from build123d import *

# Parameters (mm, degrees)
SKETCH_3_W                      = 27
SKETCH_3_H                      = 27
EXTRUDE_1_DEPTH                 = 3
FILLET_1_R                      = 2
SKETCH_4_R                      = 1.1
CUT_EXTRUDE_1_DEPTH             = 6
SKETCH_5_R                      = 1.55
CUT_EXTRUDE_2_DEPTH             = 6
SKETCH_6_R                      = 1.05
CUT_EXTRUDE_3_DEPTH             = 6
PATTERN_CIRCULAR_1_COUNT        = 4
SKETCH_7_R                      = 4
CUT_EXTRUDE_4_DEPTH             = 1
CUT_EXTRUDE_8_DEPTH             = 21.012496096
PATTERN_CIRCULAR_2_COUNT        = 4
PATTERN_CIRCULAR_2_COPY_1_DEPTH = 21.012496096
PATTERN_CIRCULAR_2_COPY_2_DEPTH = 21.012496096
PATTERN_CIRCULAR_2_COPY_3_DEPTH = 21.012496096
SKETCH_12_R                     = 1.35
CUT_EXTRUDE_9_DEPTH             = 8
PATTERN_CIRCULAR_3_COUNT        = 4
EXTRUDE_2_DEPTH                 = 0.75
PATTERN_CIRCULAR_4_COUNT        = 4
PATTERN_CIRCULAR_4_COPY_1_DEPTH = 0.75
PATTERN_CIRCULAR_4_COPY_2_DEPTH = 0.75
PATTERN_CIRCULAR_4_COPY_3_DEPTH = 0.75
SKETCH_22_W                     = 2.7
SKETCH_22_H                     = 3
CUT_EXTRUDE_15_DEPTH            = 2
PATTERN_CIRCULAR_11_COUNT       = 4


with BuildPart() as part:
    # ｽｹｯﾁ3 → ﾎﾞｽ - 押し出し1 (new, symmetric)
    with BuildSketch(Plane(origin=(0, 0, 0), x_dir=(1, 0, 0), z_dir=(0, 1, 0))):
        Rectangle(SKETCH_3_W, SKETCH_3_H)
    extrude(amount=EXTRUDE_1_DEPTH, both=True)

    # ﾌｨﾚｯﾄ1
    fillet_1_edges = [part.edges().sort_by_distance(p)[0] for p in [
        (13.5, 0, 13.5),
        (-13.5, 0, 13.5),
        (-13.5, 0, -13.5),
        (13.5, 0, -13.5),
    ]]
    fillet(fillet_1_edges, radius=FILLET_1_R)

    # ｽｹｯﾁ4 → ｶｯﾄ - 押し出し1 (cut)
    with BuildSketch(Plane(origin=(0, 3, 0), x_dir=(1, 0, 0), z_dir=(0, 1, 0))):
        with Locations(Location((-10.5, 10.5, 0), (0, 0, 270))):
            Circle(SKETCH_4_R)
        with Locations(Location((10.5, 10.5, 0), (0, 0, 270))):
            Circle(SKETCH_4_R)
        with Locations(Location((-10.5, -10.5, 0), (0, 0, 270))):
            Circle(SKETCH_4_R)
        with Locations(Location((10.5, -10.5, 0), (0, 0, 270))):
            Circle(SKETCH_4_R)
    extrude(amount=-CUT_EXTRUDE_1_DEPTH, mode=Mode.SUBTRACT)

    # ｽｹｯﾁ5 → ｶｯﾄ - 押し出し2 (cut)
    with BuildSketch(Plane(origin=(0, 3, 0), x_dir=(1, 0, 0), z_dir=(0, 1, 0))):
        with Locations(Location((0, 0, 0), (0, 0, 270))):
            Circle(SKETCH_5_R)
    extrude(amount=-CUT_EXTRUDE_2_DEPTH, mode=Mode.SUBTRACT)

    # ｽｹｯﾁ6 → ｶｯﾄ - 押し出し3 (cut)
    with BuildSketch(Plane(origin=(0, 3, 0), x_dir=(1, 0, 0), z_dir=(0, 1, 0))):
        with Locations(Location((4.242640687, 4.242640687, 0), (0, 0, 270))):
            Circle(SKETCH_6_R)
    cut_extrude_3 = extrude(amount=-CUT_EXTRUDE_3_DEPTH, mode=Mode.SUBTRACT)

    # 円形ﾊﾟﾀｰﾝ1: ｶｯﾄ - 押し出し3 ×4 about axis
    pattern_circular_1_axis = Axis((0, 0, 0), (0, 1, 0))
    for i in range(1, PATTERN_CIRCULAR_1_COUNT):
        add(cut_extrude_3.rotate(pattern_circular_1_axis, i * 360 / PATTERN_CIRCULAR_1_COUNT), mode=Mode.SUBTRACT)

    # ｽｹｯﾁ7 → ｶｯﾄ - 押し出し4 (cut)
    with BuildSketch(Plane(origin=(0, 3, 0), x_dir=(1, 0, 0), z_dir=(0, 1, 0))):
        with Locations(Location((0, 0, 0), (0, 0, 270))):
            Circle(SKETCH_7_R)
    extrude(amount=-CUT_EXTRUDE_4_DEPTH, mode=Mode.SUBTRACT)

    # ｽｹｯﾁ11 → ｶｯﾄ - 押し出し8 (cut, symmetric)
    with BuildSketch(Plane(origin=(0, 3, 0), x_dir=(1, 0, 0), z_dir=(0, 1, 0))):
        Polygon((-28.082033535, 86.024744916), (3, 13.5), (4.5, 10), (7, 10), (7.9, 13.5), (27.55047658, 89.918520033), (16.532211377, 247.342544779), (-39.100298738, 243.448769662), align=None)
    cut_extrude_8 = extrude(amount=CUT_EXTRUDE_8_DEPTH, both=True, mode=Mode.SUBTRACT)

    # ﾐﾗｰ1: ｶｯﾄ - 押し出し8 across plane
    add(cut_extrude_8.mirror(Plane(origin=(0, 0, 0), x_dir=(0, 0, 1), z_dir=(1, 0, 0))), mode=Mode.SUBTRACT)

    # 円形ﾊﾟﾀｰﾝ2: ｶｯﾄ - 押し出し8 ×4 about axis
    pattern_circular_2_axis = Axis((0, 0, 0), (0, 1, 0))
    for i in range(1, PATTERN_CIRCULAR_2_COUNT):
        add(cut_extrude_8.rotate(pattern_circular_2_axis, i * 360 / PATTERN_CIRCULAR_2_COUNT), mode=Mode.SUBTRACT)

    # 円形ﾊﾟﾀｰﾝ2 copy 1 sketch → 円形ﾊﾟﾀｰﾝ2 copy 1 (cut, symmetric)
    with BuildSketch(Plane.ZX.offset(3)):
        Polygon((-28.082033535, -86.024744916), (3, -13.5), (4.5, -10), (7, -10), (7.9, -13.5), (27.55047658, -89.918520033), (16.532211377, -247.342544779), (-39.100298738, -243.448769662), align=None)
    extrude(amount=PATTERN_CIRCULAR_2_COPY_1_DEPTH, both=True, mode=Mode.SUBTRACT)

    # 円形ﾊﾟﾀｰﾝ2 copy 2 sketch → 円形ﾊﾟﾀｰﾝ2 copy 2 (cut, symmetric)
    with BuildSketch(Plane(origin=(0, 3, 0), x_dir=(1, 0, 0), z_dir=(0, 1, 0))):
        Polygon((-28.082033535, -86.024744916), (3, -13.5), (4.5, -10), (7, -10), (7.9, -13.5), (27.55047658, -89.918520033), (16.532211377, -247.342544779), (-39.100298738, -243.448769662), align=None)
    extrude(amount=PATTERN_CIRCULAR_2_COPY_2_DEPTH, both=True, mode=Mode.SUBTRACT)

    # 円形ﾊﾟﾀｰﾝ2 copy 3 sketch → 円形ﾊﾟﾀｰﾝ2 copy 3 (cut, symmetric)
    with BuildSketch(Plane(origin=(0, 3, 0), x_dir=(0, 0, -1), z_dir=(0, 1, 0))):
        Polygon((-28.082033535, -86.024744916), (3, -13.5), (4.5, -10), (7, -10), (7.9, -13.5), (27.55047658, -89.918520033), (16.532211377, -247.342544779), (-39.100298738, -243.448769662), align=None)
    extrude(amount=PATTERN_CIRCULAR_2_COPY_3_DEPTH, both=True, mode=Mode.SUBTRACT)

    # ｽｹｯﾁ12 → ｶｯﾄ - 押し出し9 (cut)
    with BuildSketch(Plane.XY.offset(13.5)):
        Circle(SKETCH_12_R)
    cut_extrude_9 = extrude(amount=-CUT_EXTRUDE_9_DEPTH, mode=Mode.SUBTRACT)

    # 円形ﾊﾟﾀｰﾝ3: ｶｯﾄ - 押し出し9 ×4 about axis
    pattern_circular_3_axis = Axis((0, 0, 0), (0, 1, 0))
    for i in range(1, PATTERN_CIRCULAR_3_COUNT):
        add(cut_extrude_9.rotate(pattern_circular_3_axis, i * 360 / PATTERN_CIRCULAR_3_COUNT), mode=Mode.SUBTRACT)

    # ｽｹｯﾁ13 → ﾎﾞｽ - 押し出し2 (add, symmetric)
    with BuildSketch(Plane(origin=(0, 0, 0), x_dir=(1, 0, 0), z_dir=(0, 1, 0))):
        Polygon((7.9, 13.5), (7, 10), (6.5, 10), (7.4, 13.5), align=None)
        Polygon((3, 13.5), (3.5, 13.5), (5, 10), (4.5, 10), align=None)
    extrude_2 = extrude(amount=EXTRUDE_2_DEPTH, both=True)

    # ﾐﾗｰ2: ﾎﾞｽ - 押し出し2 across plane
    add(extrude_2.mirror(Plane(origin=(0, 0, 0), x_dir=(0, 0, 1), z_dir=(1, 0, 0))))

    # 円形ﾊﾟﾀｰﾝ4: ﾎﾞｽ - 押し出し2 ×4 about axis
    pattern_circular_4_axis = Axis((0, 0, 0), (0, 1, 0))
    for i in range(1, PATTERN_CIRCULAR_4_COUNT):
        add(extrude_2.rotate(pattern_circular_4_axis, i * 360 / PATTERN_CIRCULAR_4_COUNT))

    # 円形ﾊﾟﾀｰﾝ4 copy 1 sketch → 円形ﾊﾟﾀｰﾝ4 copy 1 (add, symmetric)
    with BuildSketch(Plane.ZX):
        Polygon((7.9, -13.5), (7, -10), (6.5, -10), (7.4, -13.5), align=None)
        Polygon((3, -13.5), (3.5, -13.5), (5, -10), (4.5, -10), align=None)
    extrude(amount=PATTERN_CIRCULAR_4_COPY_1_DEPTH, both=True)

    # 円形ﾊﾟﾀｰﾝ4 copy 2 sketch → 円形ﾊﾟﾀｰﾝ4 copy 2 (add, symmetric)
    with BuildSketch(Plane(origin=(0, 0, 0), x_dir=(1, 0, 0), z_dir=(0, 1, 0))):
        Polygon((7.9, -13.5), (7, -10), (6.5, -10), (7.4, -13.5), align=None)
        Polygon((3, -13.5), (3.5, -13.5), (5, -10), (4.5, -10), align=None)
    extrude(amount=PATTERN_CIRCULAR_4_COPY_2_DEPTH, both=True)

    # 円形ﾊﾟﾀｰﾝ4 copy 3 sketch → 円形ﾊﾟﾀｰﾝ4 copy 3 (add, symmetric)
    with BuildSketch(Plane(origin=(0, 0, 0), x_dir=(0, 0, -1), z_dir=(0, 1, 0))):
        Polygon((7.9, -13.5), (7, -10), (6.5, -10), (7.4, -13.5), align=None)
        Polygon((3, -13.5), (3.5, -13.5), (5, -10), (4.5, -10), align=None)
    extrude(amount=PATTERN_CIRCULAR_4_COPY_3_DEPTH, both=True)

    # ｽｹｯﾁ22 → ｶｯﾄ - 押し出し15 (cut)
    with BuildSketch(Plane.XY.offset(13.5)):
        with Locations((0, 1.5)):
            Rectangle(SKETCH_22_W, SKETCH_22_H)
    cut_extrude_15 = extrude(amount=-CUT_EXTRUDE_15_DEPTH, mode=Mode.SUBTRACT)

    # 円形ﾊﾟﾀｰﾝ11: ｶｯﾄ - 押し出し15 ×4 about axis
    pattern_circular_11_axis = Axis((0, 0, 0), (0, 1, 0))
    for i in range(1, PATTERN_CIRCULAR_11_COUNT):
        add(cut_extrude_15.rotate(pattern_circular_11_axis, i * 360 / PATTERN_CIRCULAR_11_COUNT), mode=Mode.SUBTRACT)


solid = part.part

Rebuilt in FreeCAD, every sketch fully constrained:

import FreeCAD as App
import Part
import Sketcher


def edges_at(feature, points):
    """Names of the edges that pass closest to the given points."""
    edges = feature.Shape.Edges
    near = lambda p: min(range(len(edges)), key=lambda i: edges[i].distToShape(Part.Vertex(*p))[0])
    return sorted({f"Edge{near(p) + 1}" for p in points})


def add_polygon(sketch, points):
    """Adds a closed chain of lines whose ends are joined by coincident constraints."""
    first, n = sketch.GeometryCount, len(points)
    for a, b in zip(points, points[1:] + points[:1]):
        sketch.addGeometry(Part.LineSegment(App.Vector(*a, 0), App.Vector(*b, 0)), False)
    for i in range(n):
        sketch.addConstraint(Sketcher.Constraint("Coincident", first + i, 2, first + (i + 1) % n, 1))

doc = App.newDocument("Part")
body = doc.addObject("PartDesign::Body", "Body")

sketch1 = doc.addObject("Sketcher::SketchObject", "Sketch")
body.addObject(sketch1)
sketch1.AttachmentSupport = (doc.XZ_Plane, [""])
sketch1.MapMode = "FlatFace"
add_polygon(sketch1, [(-14, -14), (-14, 14), (14, 14), (14, -14)])
sketch1.addConstraint(Sketcher.Constraint("Vertical", 0))
sketch1.addConstraint(Sketcher.Constraint("Horizontal", 1))
sketch1.addConstraint(Sketcher.Constraint("Vertical", 2))
sketch1.addConstraint(Sketcher.Constraint("Horizontal", 3))
sketch1.addConstraint(Sketcher.Constraint("Symmetric", 0, 2, 2, 2, -1, 1))
sketch1.addConstraint(Sketcher.Constraint("Equal", 3, 0))
sketch1.addConstraint(Sketcher.Constraint("DistanceX", 1, 1, 1, 2, 27.0))
pad1 = doc.addObject("PartDesign::Pad", "Pad")
body.addObject(pad1)
pad1.Profile = sketch1
pad1.Length = 6
pad1.Midplane = True
doc.recompute()

fillet = doc.addObject("PartDesign::Fillet", "Fillet")
body.addObject(fillet)
fillet.Base = (pad1, edges_at(pad1, [
    (13.5, 0, 13.5),
    (-13.5, 0, 13.5),
    (-13.5, 0, -13.5),
    (13.5, 0, -13.5),
]))
fillet.Radius = 2

sketch2 = doc.addObject("Sketcher::SketchObject", "Sketch001")
body.addObject(sketch2)
sketch2.AttachmentSupport = (doc.XZ_Plane, [""])
sketch2.MapMode = "FlatFace"
sketch2.AttachmentOffset = App.Placement(App.Vector(0, 0, -3), App.Rotation())
sketch2.addGeometry(Part.Circle(App.Vector(-10.5, -10.5, 0), App.Vector(0, 0, 1), 1.1), False)
sketch2.addGeometry(Part.Circle(App.Vector(10.5, -10.5, 0), App.Vector(0, 0, 1), 1.1), False)
sketch2.addGeometry(Part.Circle(App.Vector(-10.5, 10.5, 0), App.Vector(0, 0, 1), 1.1), False)
sketch2.addGeometry(Part.Circle(App.Vector(10.5, 10.5, 0), App.Vector(0, 0, 1), 1.1), False)
sketch2.addConstraint(Sketcher.Constraint("Equal", 0, 1))
sketch2.addConstraint(Sketcher.Constraint("Equal", 1, 2))
sketch2.addConstraint(Sketcher.Constraint("Equal", 2, 3))
sketch2.addConstraint(Sketcher.Constraint("Symmetric", 1, 3, 2, 3, -1, 1))
sketch2.addConstraint(Sketcher.Constraint("Symmetric", 0, 3, 3, 3, -1, 1))
sketch2.addConstraint(Sketcher.Constraint("Symmetric", 0, 3, 1, 3, -2))
sketch2.addConstraint(Sketcher.Constraint("Diameter", 0, 2.2))
sketch2.addConstraint(Sketcher.Constraint("DistanceX", 0, 3, 1, 3, 21.0))
sketch2.addConstraint(Sketcher.Constraint("DistanceY", 0, 3, 2, 3, 21.0))
pocket1 = doc.addObject("PartDesign::Pocket", "Pocket")
body.addObject(pocket1)
pocket1.Profile = sketch2
pocket1.Length = 6
pocket1.Reversed = True

sketch3 = doc.addObject("Sketcher::SketchObject", "Sketch002")
body.addObject(sketch3)
sketch3.AttachmentSupport = (doc.XZ_Plane, [""])
sketch3.MapMode = "FlatFace"
sketch3.AttachmentOffset = App.Placement(App.Vector(0, 0, -3), App.Rotation())
sketch3.addGeometry(Part.Circle(App.Vector(0, 0, 0), App.Vector(0, 0, 1), 1.6), False)
sketch3.addConstraint(Sketcher.Constraint("Coincident", 0, 3, -1, 1))
sketch3.addConstraint(Sketcher.Constraint("Diameter", 0, 3.1))
pocket2 = doc.addObject("PartDesign::Pocket", "Pocket001")
body.addObject(pocket2)
pocket2.Profile = sketch3
pocket2.Length = 6
pocket2.Reversed = True

sketch4 = doc.addObject("Sketcher::SketchObject", "Sketch003")
body.addObject(sketch4)
sketch4.AttachmentSupport = (doc.XZ_Plane, [""])
sketch4.MapMode = "FlatFace"
sketch4.AttachmentOffset = App.Placement(App.Vector(0, 0, -3), App.Rotation())
sketch4.addGeometry(Part.Circle(App.Vector(4.2, -4.2, 0), App.Vector(0, 0, 1), 1.1), False)
sketch4.addConstraint(Sketcher.Constraint("Diameter", 0, 2.1))
sketch4.addConstraint(Sketcher.Constraint("DistanceX", -1, 1, 0, 3, 4.242641))
sketch4.addConstraint(Sketcher.Constraint("DistanceY", 0, 3, -1, 1, 4.242641))
pocket3 = doc.addObject("PartDesign::Pocket", "Pocket002")
body.addObject(pocket3)
pocket3.Profile = sketch4
pocket3.Length = 6
pocket3.Reversed = True
doc.recompute()

polarpattern = doc.addObject("PartDesign::PolarPattern", "PolarPattern")
body.addObject(polarpattern)
polarpattern.Originals = [pocket3]
polarpattern.Axis = (doc.Y_Axis, [""])
polarpattern.Angle = 360
polarpattern.Occurrences = 4
body.Tip = polarpattern

sketch5 = doc.addObject("Sketcher::SketchObject", "Sketch004")
body.addObject(sketch5)
sketch5.AttachmentSupport = (doc.XZ_Plane, [""])
sketch5.MapMode = "FlatFace"
sketch5.AttachmentOffset = App.Placement(App.Vector(0, 0, -3), App.Rotation())
sketch5.addGeometry(Part.Circle(App.Vector(0, 0, 0), App.Vector(0, 0, 1), 4), False)
sketch5.addConstraint(Sketcher.Constraint("Coincident", 0, 3, -1, 1))
sketch5.addConstraint(Sketcher.Constraint("Diameter", 0, 8.0))
pocket4 = doc.addObject("PartDesign::Pocket", "Pocket003")
body.addObject(pocket4)
pocket4.Profile = sketch5
pocket4.Length = 1
pocket4.Reversed = True

sketch6 = doc.addObject("Sketcher::SketchObject", "Sketch005")
body.addObject(sketch6)
sketch6.AttachmentSupport = (doc.XZ_Plane, [""])
sketch6.MapMode = "FlatFace"
sketch6.AttachmentOffset = App.Placement(App.Vector(0, 0, -3), App.Rotation())
add_polygon(sketch6, [(-28.1, -86), (3, -13.5), (4.5, -10), (7, -10), (7.9, -13.5), (27.6, -89.9), (16.5, -247.3), (-39.1, -243.4)])
sketch6.addConstraint(Sketcher.Constraint("Horizontal", 2))
sketch6.addConstraint(Sketcher.Constraint("Parallel", 0, 1))
sketch6.addConstraint(Sketcher.Constraint("Parallel", 3, 4))
sketch6.addConstraint(Sketcher.Constraint("Perpendicular", 5, 6))
sketch6.addConstraint(Sketcher.Constraint("Perpendicular", 6, 7))
sketch6.addConstraint(Sketcher.Constraint("Horizontal", 0, 2, 3, 2))
sketch6.addConstraint(Sketcher.Constraint("Equal", 0, 4))
sketch6.addConstraint(Sketcher.Constraint("Equal", 5, 7))
sketch6.addConstraint(Sketcher.Constraint("DistanceX", 2, 1, 2, 2, 2.5))
sketch6.addConstraint(Sketcher.Constraint("DistanceX", -1, 1, 0, 2, 3.0))
sketch6.addConstraint(Sketcher.Constraint("DistanceY", 1, 2, -1, 1, 10.0))
sketch6.addConstraint(Sketcher.Constraint("DistanceX", -1, 1, 2, 2, 7.0))
sketch6.addConstraint(Sketcher.Constraint("DistanceY", 0, 2, -1, 1, 13.5))
sketch6.addConstraint(Sketcher.Constraint("DistanceX", -1, 1, 3, 2, 7.9))
sketch6.addConstraint(Sketcher.Constraint("DistanceX", 6, 2, -1, 1, 39.100299))
sketch6.addConstraint(Sketcher.Constraint("Distance", 0, 78.904572))
pocket5 = doc.addObject("PartDesign::Pocket", "Pocket004")
body.addObject(pocket5)
pocket5.Profile = sketch6
pocket5.Length = 42.024992
pocket5.Midplane = True
doc.recompute()

mirrored = doc.addObject("PartDesign::Mirrored", "Mirrored")
body.addObject(mirrored)
mirrored.Originals = [pocket5]
mirrored.MirrorPlane = (doc.YZ_Plane, [""])
body.Tip = mirrored
doc.recompute()

polarpattern2 = doc.addObject("PartDesign::PolarPattern", "PolarPattern001")
body.addObject(polarpattern2)
polarpattern2.Originals = [pocket5]
polarpattern2.Axis = (doc.Y_Axis, [""])
polarpattern2.Angle = 360
polarpattern2.Occurrences = 4
body.Tip = polarpattern2

sketch7 = doc.addObject("Sketcher::SketchObject", "Sketch006")
body.addObject(sketch7)
sketch7.AttachmentSupport = (doc.XZ_Plane, [""])
sketch7.MapMode = "FlatFace"
sketch7.AttachmentOffset = App.Placement(App.Vector(0, 0, -3), App.Rotation())
add_polygon(sketch7, [(-13.5, 3), (-86, -28.1), (-243.4, -39.1), (-247.3, 16.5), (-89.9, 27.6), (-13.5, 7.9), (-10, 7), (-10, 4.5)])
sketch7.addConstraint(Sketcher.Constraint("Vertical", 6))
sketch7.addConstraint(Sketcher.Constraint("Perpendicular", 1, 2))
sketch7.addConstraint(Sketcher.Constraint("Perpendicular", 2, 3))
sketch7.addConstraint(Sketcher.Constraint("Parallel", 4, 5))
sketch7.addConstraint(Sketcher.Constraint("Parallel", 0, 7))
sketch7.addConstraint(Sketcher.Constraint("Vertical", 4, 2, 7, 2))
sketch7.addConstraint(Sketcher.Constraint("Equal", 1, 3))
sketch7.addConstraint(Sketcher.Constraint("Equal", 0, 4))
sketch7.addConstraint(Sketcher.Constraint("DistanceY", 6, 2, 6, 1, 2.5))
sketch7.addConstraint(Sketcher.Constraint("DistanceX", 5, 2, -1, 1, 10.0))
sketch7.addConstraint(Sketcher.Constraint("DistanceY", -1, 1, 5, 2, 7.0))
sketch7.addConstraint(Sketcher.Constraint("DistanceY", -1, 1, 7, 2, 3.0))
sketch7.addConstraint(Sketcher.Constraint("DistanceX", 4, 2, -1, 1, 13.5))
sketch7.addConstraint(Sketcher.Constraint("DistanceY", -1, 1, 4, 2, 7.9))
sketch7.addConstraint(Sketcher.Constraint("DistanceY", 1, 2, -1, 1, 39.100299))
sketch7.addConstraint(Sketcher.Constraint("DistanceX", 2, 2, 0, 2, 161.3178))
pocket6 = doc.addObject("PartDesign::Pocket", "Pocket005")
body.addObject(pocket6)
pocket6.Profile = sketch7
pocket6.Length = 42.024992
pocket6.Midplane = True

sketch8 = doc.addObject("Sketcher::SketchObject", "Sketch007")
body.addObject(sketch8)
sketch8.AttachmentSupport = (doc.XZ_Plane, [""])
sketch8.MapMode = "FlatFace"
sketch8.AttachmentOffset = App.Placement(App.Vector(0, 0, -3), App.Rotation())
add_polygon(sketch8, [(3, 13.5), (-28.1, 86), (-39.1, 243.4), (16.5, 247.3), (27.6, 89.9), (7.9, 13.5), (7, 10), (4.5, 10)])
sketch8.addConstraint(Sketcher.Constraint("Horizontal", 6))
sketch8.addConstraint(Sketcher.Constraint("Perpendicular", 1, 2))
sketch8.addConstraint(Sketcher.Constraint("Perpendicular", 2, 3))
sketch8.addConstraint(Sketcher.Constraint("Parallel", 4, 5))
sketch8.addConstraint(Sketcher.Constraint("Parallel", 0, 7))
sketch8.addConstraint(Sketcher.Constraint("Horizontal", 4, 2, 7, 2))
sketch8.addConstraint(Sketcher.Constraint("Equal", 1, 3))
sketch8.addConstraint(Sketcher.Constraint("Equal", 0, 4))
sketch8.addConstraint(Sketcher.Constraint("DistanceX", 6, 2, 6, 1, 2.5))
sketch8.addConstraint(Sketcher.Constraint("DistanceX", -1, 1, 5, 2, 7.0))
sketch8.addConstraint(Sketcher.Constraint("DistanceY", -1, 1, 5, 2, 10.0))
sketch8.addConstraint(Sketcher.Constraint("DistanceX", -1, 1, 7, 2, 3.0))
sketch8.addConstraint(Sketcher.Constraint("DistanceX", -1, 1, 4, 2, 7.9))
sketch8.addConstraint(Sketcher.Constraint("DistanceY", -1, 1, 4, 2, 13.5))
sketch8.addConstraint(Sketcher.Constraint("DistanceX", 1, 2, -1, 1, 39.100299))
sketch8.addConstraint(Sketcher.Constraint("DistanceY", 0, 2, 2, 2, 161.3178))
pocket7 = doc.addObject("PartDesign::Pocket", "Pocket006")
body.addObject(pocket7)
pocket7.Profile = sketch8
pocket7.Length = 42.024992
pocket7.Midplane = True

sketch9 = doc.addObject("Sketcher::SketchObject", "Sketch008")
body.addObject(sketch9)
sketch9.AttachmentSupport = (doc.XZ_Plane, [""])
sketch9.MapMode = "FlatFace"
sketch9.AttachmentOffset = App.Placement(App.Vector(0, 0, -3), App.Rotation())
add_polygon(sketch9, [(13.5, -3), (86, 28.1), (243.4, 39.1), (247.3, -16.5), (89.9, -27.6), (13.5, -7.9), (10, -7), (10, -4.5)])
sketch9.addConstraint(Sketcher.Constraint("Vertical", 6))
sketch9.addConstraint(Sketcher.Constraint("Perpendicular", 1, 2))
sketch9.addConstraint(Sketcher.Constraint("Perpendicular", 2, 3))
sketch9.addConstraint(Sketcher.Constraint("Parallel", 4, 5))
sketch9.addConstraint(Sketcher.Constraint("Parallel", 0, 7))
sketch9.addConstraint(Sketcher.Constraint("Vertical", 4, 2, 7, 2))
sketch9.addConstraint(Sketcher.Constraint("Equal", 1, 3))
sketch9.addConstraint(Sketcher.Constraint("Equal", 0, 4))
sketch9.addConstraint(Sketcher.Constraint("DistanceY", 6, 1, 6, 2, 2.5))
sketch9.addConstraint(Sketcher.Constraint("DistanceX", -1, 1, 5, 2, 10.0))
sketch9.addConstraint(Sketcher.Constraint("DistanceY", 5, 2, -1, 1, 7.0))
sketch9.addConstraint(Sketcher.Constraint("DistanceY", 7, 2, -1, 1, 3.0))
sketch9.addConstraint(Sketcher.Constraint("DistanceX", -1, 1, 4, 2, 13.5))
sketch9.addConstraint(Sketcher.Constraint("DistanceY", 4, 2, -1, 1, 7.9))
sketch9.addConstraint(Sketcher.Constraint("DistanceY", -1, 1, 1, 2, 39.100299))
sketch9.addConstraint(Sketcher.Constraint("DistanceX", 0, 2, 2, 2, 161.3178))
pocket8 = doc.addObject("PartDesign::Pocket", "Pocket007")
body.addObject(pocket8)
pocket8.Profile = sketch9
pocket8.Length = 42.024992
pocket8.Midplane = True

sketch10 = doc.addObject("Sketcher::SketchObject", "Sketch009")
body.addObject(sketch10)
sketch10.AttachmentSupport = (doc.XY_Plane, [""])
sketch10.MapMode = "FlatFace"
sketch10.AttachmentOffset = App.Placement(App.Vector(0, 0, 13.5), App.Rotation())
sketch10.addGeometry(Part.Circle(App.Vector(0, 0, 0), App.Vector(0, 0, 1), 1.4), False)
sketch10.addConstraint(Sketcher.Constraint("Coincident", 0, 3, -1, 1))
sketch10.addConstraint(Sketcher.Constraint("Diameter", 0, 2.7))
pocket9 = doc.addObject("PartDesign::Pocket", "Pocket008")
body.addObject(pocket9)
pocket9.Profile = sketch10
pocket9.Length = 8
doc.recompute()

polarpattern3 = doc.addObject("PartDesign::PolarPattern", "PolarPattern002")
body.addObject(polarpattern3)
polarpattern3.Originals = [pocket9]
polarpattern3.Axis = (doc.Y_Axis, [""])
polarpattern3.Angle = 360
polarpattern3.Occurrences = 4
body.Tip = polarpattern3

sketch11 = doc.addObject("Sketcher::SketchObject", "Sketch010")
body.addObject(sketch11)
sketch11.AttachmentSupport = (doc.XZ_Plane, [""])
sketch11.MapMode = "FlatFace"
add_polygon(sketch11, [(7, -10), (7.9, -13.5), (7.4, -13.5), (6.5, -10)])
add_polygon(sketch11, [(3.5, -13.5), (3, -13.5), (4.5, -10), (5, -10)])
sketch11.addConstraint(Sketcher.Constraint("Horizontal", 1))
sketch11.addConstraint(Sketcher.Constraint("Horizontal", 3))
sketch11.addConstraint(Sketcher.Constraint("Horizontal", 4))
sketch11.addConstraint(Sketcher.Constraint("Horizontal", 6))
sketch11.addConstraint(Sketcher.Constraint("Parallel", 0, 2))
sketch11.addConstraint(Sketcher.Constraint("Parallel", 5, 7))
sketch11.addConstraint(Sketcher.Constraint("Horizontal", 1, 2, 4, 2))
sketch11.addConstraint(Sketcher.Constraint("Horizontal", 3, 2, 5, 2))
sketch11.addConstraint(Sketcher.Constraint("Equal", 3, 4))
sketch11.addConstraint(Sketcher.Constraint("DistanceX", 1, 2, 1, 1, 0.5))
sketch11.addConstraint(Sketcher.Constraint("DistanceY", 2, 2, -1, 1, 10.0))
sketch11.addConstraint(Sketcher.Constraint("DistanceX", -1, 1, 3, 2, 7.0))
sketch11.addConstraint(Sketcher.Constraint("DistanceX", -1, 1, 4, 2, 3.0))
sketch11.addConstraint(Sketcher.Constraint("DistanceX", -1, 1, 6, 2, 5.0))
sketch11.addConstraint(Sketcher.Constraint("DistanceX", -1, 1, 0, 2, 7.9))
sketch11.addConstraint(Sketcher.Constraint("DistanceY", 0, 2, -1, 1, 13.5))
pad2 = doc.addObject("PartDesign::Pad", "Pad001")
body.addObject(pad2)
pad2.Profile = sketch11
pad2.Length = 1.5
pad2.Midplane = True
doc.recompute()

mirrored2 = doc.addObject("PartDesign::Mirrored", "Mirrored001")
body.addObject(mirrored2)
mirrored2.Originals = [pad2]
mirrored2.MirrorPlane = (doc.YZ_Plane, [""])
body.Tip = mirrored2
doc.recompute()

polarpattern4 = doc.addObject("PartDesign::PolarPattern", "PolarPattern003")
body.addObject(polarpattern4)
polarpattern4.Originals = [pad2]
polarpattern4.Axis = (doc.Y_Axis, [""])
polarpattern4.Angle = 360
polarpattern4.Occurrences = 4
body.Tip = polarpattern4

sketch12 = doc.addObject("Sketcher::SketchObject", "Sketch011")
body.addObject(sketch12)
sketch12.AttachmentSupport = (doc.XZ_Plane, [""])
sketch12.MapMode = "FlatFace"
add_polygon(sketch12, [(-13.5, 7.9), (-10, 7), (-10, 6.5), (-13.5, 7.4)])
add_polygon(sketch12, [(-13.5, 3), (-13.5, 3.5), (-10, 5), (-10, 4.5)])
sketch12.addConstraint(Sketcher.Constraint("Vertical", 1))
sketch12.addConstraint(Sketcher.Constraint("Vertical", 3))
sketch12.addConstraint(Sketcher.Constraint("Vertical", 4))
sketch12.addConstraint(Sketcher.Constraint("Vertical", 6))
sketch12.addConstraint(Sketcher.Constraint("Parallel", 0, 2))
sketch12.addConstraint(Sketcher.Constraint("Parallel", 5, 7))
sketch12.addConstraint(Sketcher.Constraint("Vertical", 3, 2, 4, 2))
sketch12.addConstraint(Sketcher.Constraint("Vertical", 1, 2, 5, 2))
sketch12.addConstraint(Sketcher.Constraint("Equal", 3, 4))
sketch12.addConstraint(Sketcher.Constraint("DistanceY", 1, 2, 1, 1, 0.5))
sketch12.addConstraint(Sketcher.Constraint("DistanceX", 0, 2, -1, 1, 10.0))
sketch12.addConstraint(Sketcher.Constraint("DistanceY", -1, 1, 0, 2, 7.0))
sketch12.addConstraint(Sketcher.Constraint("DistanceY", -1, 1, 5, 2, 5.0))
sketch12.addConstraint(Sketcher.Constraint("DistanceY", -1, 1, 7, 2, 3.0))
sketch12.addConstraint(Sketcher.Constraint("DistanceX", 2, 2, -1, 1, 13.5))
sketch12.addConstraint(Sketcher.Constraint("DistanceY", -1, 1, 2, 2, 7.4))
pad3 = doc.addObject("PartDesign::Pad", "Pad002")
body.addObject(pad3)
pad3.Profile = sketch12
pad3.Length = 1.5
pad3.Midplane = True

sketch13 = doc.addObject("Sketcher::SketchObject", "Sketch012")
body.addObject(sketch13)
sketch13.AttachmentSupport = (doc.XZ_Plane, [""])
sketch13.MapMode = "FlatFace"
add_polygon(sketch13, [(7.9, 13.5), (7, 10), (6.5, 10), (7.4, 13.5)])
add_polygon(sketch13, [(3, 13.5), (3.5, 13.5), (5, 10), (4.5, 10)])
sketch13.addConstraint(Sketcher.Constraint("Horizontal", 1))
sketch13.addConstraint(Sketcher.Constraint("Horizontal", 3))
sketch13.addConstraint(Sketcher.Constraint("Horizontal", 4))
sketch13.addConstraint(Sketcher.Constraint("Horizontal", 6))
sketch13.addConstraint(Sketcher.Constraint("Parallel", 0, 2))
sketch13.addConstraint(Sketcher.Constraint("Parallel", 5, 7))
sketch13.addConstraint(Sketcher.Constraint("Horizontal", 3, 2, 4, 2))
sketch13.addConstraint(Sketcher.Constraint("Horizontal", 1, 2, 5, 2))
sketch13.addConstraint(Sketcher.Constraint("Equal", 3, 4))
sketch13.addConstraint(Sketcher.Constraint("DistanceX", 1, 2, 1, 1, 0.5))
sketch13.addConstraint(Sketcher.Constraint("DistanceX", -1, 1, 0, 2, 7.0))
sketch13.addConstraint(Sketcher.Constraint("DistanceY", -1, 1, 0, 2, 10.0))
sketch13.addConstraint(Sketcher.Constraint("DistanceX", -1, 1, 5, 2, 5.0))
sketch13.addConstraint(Sketcher.Constraint("DistanceX", -1, 1, 7, 2, 3.0))
sketch13.addConstraint(Sketcher.Constraint("DistanceX", -1, 1, 2, 2, 7.4))
sketch13.addConstraint(Sketcher.Constraint("DistanceY", -1, 1, 2, 2, 13.5))
pad4 = doc.addObject("PartDesign::Pad", "Pad003")
body.addObject(pad4)
pad4.Profile = sketch13
pad4.Length = 1.5
pad4.Midplane = True

sketch14 = doc.addObject("Sketcher::SketchObject", "Sketch013")
body.addObject(sketch14)
sketch14.AttachmentSupport = (doc.XZ_Plane, [""])
sketch14.MapMode = "FlatFace"
add_polygon(sketch14, [(13.5, -7.9), (10, -7), (10, -6.5), (13.5, -7.4)])
add_polygon(sketch14, [(13.5, -3), (13.5, -3.5), (10, -5), (10, -4.5)])
sketch14.addConstraint(Sketcher.Constraint("Vertical", 1))
sketch14.addConstraint(Sketcher.Constraint("Vertical", 3))
sketch14.addConstraint(Sketcher.Constraint("Vertical", 4))
sketch14.addConstraint(Sketcher.Constraint("Vertical", 6))
sketch14.addConstraint(Sketcher.Constraint("Parallel", 0, 2))
sketch14.addConstraint(Sketcher.Constraint("Parallel", 5, 7))
sketch14.addConstraint(Sketcher.Constraint("Vertical", 3, 2, 4, 2))
sketch14.addConstraint(Sketcher.Constraint("Vertical", 1, 2, 5, 2))
sketch14.addConstraint(Sketcher.Constraint("Equal", 3, 4))
sketch14.addConstraint(Sketcher.Constraint("DistanceY", 1, 1, 1, 2, 0.5))
sketch14.addConstraint(Sketcher.Constraint("DistanceX", -1, 1, 0, 2, 10.0))
sketch14.addConstraint(Sketcher.Constraint("DistanceY", 0, 2, -1, 1, 7.0))
sketch14.addConstraint(Sketcher.Constraint("DistanceY", 5, 2, -1, 1, 5.0))
sketch14.addConstraint(Sketcher.Constraint("DistanceY", 7, 2, -1, 1, 3.0))
sketch14.addConstraint(Sketcher.Constraint("DistanceX", -1, 1, 2, 2, 13.5))
sketch14.addConstraint(Sketcher.Constraint("DistanceY", 2, 2, -1, 1, 7.4))
pad5 = doc.addObject("PartDesign::Pad", "Pad004")
body.addObject(pad5)
pad5.Profile = sketch14
pad5.Length = 1.5
pad5.Midplane = True

sketch15 = doc.addObject("Sketcher::SketchObject", "Sketch014")
body.addObject(sketch15)
sketch15.AttachmentSupport = (doc.XY_Plane, [""])
sketch15.MapMode = "FlatFace"
sketch15.AttachmentOffset = App.Placement(App.Vector(0, 0, 13.5), App.Rotation())
add_polygon(sketch15, [(-1.4, 3), (-1.4, 0), (1.4, 0), (1.4, 3)])
sketch15.addConstraint(Sketcher.Constraint("Vertical", 0))
sketch15.addConstraint(Sketcher.Constraint("Horizontal", 1))
sketch15.addConstraint(Sketcher.Constraint("Vertical", 2))
sketch15.addConstraint(Sketcher.Constraint("Horizontal", 3))
sketch15.addConstraint(Sketcher.Constraint("Symmetric", 0, 2, 1, 2, -1, 1))
sketch15.addConstraint(Sketcher.Constraint("DistanceY", 0, 2, 0, 1, 3.0))
sketch15.addConstraint(Sketcher.Constraint("DistanceX", 1, 1, 1, 2, 2.7))
pocket10 = doc.addObject("PartDesign::Pocket", "Pocket009")
body.addObject(pocket10)
pocket10.Profile = sketch15
pocket10.Length = 2
doc.recompute()

polarpattern5 = doc.addObject("PartDesign::PolarPattern", "PolarPattern004")
body.addObject(polarpattern5)
polarpattern5.Originals = [pocket10]
polarpattern5.Axis = (doc.Y_Axis, [""])
polarpattern5.Angle = 360
polarpattern5.Occurrences = 4
body.Tip = polarpattern5

doc.recompute()
